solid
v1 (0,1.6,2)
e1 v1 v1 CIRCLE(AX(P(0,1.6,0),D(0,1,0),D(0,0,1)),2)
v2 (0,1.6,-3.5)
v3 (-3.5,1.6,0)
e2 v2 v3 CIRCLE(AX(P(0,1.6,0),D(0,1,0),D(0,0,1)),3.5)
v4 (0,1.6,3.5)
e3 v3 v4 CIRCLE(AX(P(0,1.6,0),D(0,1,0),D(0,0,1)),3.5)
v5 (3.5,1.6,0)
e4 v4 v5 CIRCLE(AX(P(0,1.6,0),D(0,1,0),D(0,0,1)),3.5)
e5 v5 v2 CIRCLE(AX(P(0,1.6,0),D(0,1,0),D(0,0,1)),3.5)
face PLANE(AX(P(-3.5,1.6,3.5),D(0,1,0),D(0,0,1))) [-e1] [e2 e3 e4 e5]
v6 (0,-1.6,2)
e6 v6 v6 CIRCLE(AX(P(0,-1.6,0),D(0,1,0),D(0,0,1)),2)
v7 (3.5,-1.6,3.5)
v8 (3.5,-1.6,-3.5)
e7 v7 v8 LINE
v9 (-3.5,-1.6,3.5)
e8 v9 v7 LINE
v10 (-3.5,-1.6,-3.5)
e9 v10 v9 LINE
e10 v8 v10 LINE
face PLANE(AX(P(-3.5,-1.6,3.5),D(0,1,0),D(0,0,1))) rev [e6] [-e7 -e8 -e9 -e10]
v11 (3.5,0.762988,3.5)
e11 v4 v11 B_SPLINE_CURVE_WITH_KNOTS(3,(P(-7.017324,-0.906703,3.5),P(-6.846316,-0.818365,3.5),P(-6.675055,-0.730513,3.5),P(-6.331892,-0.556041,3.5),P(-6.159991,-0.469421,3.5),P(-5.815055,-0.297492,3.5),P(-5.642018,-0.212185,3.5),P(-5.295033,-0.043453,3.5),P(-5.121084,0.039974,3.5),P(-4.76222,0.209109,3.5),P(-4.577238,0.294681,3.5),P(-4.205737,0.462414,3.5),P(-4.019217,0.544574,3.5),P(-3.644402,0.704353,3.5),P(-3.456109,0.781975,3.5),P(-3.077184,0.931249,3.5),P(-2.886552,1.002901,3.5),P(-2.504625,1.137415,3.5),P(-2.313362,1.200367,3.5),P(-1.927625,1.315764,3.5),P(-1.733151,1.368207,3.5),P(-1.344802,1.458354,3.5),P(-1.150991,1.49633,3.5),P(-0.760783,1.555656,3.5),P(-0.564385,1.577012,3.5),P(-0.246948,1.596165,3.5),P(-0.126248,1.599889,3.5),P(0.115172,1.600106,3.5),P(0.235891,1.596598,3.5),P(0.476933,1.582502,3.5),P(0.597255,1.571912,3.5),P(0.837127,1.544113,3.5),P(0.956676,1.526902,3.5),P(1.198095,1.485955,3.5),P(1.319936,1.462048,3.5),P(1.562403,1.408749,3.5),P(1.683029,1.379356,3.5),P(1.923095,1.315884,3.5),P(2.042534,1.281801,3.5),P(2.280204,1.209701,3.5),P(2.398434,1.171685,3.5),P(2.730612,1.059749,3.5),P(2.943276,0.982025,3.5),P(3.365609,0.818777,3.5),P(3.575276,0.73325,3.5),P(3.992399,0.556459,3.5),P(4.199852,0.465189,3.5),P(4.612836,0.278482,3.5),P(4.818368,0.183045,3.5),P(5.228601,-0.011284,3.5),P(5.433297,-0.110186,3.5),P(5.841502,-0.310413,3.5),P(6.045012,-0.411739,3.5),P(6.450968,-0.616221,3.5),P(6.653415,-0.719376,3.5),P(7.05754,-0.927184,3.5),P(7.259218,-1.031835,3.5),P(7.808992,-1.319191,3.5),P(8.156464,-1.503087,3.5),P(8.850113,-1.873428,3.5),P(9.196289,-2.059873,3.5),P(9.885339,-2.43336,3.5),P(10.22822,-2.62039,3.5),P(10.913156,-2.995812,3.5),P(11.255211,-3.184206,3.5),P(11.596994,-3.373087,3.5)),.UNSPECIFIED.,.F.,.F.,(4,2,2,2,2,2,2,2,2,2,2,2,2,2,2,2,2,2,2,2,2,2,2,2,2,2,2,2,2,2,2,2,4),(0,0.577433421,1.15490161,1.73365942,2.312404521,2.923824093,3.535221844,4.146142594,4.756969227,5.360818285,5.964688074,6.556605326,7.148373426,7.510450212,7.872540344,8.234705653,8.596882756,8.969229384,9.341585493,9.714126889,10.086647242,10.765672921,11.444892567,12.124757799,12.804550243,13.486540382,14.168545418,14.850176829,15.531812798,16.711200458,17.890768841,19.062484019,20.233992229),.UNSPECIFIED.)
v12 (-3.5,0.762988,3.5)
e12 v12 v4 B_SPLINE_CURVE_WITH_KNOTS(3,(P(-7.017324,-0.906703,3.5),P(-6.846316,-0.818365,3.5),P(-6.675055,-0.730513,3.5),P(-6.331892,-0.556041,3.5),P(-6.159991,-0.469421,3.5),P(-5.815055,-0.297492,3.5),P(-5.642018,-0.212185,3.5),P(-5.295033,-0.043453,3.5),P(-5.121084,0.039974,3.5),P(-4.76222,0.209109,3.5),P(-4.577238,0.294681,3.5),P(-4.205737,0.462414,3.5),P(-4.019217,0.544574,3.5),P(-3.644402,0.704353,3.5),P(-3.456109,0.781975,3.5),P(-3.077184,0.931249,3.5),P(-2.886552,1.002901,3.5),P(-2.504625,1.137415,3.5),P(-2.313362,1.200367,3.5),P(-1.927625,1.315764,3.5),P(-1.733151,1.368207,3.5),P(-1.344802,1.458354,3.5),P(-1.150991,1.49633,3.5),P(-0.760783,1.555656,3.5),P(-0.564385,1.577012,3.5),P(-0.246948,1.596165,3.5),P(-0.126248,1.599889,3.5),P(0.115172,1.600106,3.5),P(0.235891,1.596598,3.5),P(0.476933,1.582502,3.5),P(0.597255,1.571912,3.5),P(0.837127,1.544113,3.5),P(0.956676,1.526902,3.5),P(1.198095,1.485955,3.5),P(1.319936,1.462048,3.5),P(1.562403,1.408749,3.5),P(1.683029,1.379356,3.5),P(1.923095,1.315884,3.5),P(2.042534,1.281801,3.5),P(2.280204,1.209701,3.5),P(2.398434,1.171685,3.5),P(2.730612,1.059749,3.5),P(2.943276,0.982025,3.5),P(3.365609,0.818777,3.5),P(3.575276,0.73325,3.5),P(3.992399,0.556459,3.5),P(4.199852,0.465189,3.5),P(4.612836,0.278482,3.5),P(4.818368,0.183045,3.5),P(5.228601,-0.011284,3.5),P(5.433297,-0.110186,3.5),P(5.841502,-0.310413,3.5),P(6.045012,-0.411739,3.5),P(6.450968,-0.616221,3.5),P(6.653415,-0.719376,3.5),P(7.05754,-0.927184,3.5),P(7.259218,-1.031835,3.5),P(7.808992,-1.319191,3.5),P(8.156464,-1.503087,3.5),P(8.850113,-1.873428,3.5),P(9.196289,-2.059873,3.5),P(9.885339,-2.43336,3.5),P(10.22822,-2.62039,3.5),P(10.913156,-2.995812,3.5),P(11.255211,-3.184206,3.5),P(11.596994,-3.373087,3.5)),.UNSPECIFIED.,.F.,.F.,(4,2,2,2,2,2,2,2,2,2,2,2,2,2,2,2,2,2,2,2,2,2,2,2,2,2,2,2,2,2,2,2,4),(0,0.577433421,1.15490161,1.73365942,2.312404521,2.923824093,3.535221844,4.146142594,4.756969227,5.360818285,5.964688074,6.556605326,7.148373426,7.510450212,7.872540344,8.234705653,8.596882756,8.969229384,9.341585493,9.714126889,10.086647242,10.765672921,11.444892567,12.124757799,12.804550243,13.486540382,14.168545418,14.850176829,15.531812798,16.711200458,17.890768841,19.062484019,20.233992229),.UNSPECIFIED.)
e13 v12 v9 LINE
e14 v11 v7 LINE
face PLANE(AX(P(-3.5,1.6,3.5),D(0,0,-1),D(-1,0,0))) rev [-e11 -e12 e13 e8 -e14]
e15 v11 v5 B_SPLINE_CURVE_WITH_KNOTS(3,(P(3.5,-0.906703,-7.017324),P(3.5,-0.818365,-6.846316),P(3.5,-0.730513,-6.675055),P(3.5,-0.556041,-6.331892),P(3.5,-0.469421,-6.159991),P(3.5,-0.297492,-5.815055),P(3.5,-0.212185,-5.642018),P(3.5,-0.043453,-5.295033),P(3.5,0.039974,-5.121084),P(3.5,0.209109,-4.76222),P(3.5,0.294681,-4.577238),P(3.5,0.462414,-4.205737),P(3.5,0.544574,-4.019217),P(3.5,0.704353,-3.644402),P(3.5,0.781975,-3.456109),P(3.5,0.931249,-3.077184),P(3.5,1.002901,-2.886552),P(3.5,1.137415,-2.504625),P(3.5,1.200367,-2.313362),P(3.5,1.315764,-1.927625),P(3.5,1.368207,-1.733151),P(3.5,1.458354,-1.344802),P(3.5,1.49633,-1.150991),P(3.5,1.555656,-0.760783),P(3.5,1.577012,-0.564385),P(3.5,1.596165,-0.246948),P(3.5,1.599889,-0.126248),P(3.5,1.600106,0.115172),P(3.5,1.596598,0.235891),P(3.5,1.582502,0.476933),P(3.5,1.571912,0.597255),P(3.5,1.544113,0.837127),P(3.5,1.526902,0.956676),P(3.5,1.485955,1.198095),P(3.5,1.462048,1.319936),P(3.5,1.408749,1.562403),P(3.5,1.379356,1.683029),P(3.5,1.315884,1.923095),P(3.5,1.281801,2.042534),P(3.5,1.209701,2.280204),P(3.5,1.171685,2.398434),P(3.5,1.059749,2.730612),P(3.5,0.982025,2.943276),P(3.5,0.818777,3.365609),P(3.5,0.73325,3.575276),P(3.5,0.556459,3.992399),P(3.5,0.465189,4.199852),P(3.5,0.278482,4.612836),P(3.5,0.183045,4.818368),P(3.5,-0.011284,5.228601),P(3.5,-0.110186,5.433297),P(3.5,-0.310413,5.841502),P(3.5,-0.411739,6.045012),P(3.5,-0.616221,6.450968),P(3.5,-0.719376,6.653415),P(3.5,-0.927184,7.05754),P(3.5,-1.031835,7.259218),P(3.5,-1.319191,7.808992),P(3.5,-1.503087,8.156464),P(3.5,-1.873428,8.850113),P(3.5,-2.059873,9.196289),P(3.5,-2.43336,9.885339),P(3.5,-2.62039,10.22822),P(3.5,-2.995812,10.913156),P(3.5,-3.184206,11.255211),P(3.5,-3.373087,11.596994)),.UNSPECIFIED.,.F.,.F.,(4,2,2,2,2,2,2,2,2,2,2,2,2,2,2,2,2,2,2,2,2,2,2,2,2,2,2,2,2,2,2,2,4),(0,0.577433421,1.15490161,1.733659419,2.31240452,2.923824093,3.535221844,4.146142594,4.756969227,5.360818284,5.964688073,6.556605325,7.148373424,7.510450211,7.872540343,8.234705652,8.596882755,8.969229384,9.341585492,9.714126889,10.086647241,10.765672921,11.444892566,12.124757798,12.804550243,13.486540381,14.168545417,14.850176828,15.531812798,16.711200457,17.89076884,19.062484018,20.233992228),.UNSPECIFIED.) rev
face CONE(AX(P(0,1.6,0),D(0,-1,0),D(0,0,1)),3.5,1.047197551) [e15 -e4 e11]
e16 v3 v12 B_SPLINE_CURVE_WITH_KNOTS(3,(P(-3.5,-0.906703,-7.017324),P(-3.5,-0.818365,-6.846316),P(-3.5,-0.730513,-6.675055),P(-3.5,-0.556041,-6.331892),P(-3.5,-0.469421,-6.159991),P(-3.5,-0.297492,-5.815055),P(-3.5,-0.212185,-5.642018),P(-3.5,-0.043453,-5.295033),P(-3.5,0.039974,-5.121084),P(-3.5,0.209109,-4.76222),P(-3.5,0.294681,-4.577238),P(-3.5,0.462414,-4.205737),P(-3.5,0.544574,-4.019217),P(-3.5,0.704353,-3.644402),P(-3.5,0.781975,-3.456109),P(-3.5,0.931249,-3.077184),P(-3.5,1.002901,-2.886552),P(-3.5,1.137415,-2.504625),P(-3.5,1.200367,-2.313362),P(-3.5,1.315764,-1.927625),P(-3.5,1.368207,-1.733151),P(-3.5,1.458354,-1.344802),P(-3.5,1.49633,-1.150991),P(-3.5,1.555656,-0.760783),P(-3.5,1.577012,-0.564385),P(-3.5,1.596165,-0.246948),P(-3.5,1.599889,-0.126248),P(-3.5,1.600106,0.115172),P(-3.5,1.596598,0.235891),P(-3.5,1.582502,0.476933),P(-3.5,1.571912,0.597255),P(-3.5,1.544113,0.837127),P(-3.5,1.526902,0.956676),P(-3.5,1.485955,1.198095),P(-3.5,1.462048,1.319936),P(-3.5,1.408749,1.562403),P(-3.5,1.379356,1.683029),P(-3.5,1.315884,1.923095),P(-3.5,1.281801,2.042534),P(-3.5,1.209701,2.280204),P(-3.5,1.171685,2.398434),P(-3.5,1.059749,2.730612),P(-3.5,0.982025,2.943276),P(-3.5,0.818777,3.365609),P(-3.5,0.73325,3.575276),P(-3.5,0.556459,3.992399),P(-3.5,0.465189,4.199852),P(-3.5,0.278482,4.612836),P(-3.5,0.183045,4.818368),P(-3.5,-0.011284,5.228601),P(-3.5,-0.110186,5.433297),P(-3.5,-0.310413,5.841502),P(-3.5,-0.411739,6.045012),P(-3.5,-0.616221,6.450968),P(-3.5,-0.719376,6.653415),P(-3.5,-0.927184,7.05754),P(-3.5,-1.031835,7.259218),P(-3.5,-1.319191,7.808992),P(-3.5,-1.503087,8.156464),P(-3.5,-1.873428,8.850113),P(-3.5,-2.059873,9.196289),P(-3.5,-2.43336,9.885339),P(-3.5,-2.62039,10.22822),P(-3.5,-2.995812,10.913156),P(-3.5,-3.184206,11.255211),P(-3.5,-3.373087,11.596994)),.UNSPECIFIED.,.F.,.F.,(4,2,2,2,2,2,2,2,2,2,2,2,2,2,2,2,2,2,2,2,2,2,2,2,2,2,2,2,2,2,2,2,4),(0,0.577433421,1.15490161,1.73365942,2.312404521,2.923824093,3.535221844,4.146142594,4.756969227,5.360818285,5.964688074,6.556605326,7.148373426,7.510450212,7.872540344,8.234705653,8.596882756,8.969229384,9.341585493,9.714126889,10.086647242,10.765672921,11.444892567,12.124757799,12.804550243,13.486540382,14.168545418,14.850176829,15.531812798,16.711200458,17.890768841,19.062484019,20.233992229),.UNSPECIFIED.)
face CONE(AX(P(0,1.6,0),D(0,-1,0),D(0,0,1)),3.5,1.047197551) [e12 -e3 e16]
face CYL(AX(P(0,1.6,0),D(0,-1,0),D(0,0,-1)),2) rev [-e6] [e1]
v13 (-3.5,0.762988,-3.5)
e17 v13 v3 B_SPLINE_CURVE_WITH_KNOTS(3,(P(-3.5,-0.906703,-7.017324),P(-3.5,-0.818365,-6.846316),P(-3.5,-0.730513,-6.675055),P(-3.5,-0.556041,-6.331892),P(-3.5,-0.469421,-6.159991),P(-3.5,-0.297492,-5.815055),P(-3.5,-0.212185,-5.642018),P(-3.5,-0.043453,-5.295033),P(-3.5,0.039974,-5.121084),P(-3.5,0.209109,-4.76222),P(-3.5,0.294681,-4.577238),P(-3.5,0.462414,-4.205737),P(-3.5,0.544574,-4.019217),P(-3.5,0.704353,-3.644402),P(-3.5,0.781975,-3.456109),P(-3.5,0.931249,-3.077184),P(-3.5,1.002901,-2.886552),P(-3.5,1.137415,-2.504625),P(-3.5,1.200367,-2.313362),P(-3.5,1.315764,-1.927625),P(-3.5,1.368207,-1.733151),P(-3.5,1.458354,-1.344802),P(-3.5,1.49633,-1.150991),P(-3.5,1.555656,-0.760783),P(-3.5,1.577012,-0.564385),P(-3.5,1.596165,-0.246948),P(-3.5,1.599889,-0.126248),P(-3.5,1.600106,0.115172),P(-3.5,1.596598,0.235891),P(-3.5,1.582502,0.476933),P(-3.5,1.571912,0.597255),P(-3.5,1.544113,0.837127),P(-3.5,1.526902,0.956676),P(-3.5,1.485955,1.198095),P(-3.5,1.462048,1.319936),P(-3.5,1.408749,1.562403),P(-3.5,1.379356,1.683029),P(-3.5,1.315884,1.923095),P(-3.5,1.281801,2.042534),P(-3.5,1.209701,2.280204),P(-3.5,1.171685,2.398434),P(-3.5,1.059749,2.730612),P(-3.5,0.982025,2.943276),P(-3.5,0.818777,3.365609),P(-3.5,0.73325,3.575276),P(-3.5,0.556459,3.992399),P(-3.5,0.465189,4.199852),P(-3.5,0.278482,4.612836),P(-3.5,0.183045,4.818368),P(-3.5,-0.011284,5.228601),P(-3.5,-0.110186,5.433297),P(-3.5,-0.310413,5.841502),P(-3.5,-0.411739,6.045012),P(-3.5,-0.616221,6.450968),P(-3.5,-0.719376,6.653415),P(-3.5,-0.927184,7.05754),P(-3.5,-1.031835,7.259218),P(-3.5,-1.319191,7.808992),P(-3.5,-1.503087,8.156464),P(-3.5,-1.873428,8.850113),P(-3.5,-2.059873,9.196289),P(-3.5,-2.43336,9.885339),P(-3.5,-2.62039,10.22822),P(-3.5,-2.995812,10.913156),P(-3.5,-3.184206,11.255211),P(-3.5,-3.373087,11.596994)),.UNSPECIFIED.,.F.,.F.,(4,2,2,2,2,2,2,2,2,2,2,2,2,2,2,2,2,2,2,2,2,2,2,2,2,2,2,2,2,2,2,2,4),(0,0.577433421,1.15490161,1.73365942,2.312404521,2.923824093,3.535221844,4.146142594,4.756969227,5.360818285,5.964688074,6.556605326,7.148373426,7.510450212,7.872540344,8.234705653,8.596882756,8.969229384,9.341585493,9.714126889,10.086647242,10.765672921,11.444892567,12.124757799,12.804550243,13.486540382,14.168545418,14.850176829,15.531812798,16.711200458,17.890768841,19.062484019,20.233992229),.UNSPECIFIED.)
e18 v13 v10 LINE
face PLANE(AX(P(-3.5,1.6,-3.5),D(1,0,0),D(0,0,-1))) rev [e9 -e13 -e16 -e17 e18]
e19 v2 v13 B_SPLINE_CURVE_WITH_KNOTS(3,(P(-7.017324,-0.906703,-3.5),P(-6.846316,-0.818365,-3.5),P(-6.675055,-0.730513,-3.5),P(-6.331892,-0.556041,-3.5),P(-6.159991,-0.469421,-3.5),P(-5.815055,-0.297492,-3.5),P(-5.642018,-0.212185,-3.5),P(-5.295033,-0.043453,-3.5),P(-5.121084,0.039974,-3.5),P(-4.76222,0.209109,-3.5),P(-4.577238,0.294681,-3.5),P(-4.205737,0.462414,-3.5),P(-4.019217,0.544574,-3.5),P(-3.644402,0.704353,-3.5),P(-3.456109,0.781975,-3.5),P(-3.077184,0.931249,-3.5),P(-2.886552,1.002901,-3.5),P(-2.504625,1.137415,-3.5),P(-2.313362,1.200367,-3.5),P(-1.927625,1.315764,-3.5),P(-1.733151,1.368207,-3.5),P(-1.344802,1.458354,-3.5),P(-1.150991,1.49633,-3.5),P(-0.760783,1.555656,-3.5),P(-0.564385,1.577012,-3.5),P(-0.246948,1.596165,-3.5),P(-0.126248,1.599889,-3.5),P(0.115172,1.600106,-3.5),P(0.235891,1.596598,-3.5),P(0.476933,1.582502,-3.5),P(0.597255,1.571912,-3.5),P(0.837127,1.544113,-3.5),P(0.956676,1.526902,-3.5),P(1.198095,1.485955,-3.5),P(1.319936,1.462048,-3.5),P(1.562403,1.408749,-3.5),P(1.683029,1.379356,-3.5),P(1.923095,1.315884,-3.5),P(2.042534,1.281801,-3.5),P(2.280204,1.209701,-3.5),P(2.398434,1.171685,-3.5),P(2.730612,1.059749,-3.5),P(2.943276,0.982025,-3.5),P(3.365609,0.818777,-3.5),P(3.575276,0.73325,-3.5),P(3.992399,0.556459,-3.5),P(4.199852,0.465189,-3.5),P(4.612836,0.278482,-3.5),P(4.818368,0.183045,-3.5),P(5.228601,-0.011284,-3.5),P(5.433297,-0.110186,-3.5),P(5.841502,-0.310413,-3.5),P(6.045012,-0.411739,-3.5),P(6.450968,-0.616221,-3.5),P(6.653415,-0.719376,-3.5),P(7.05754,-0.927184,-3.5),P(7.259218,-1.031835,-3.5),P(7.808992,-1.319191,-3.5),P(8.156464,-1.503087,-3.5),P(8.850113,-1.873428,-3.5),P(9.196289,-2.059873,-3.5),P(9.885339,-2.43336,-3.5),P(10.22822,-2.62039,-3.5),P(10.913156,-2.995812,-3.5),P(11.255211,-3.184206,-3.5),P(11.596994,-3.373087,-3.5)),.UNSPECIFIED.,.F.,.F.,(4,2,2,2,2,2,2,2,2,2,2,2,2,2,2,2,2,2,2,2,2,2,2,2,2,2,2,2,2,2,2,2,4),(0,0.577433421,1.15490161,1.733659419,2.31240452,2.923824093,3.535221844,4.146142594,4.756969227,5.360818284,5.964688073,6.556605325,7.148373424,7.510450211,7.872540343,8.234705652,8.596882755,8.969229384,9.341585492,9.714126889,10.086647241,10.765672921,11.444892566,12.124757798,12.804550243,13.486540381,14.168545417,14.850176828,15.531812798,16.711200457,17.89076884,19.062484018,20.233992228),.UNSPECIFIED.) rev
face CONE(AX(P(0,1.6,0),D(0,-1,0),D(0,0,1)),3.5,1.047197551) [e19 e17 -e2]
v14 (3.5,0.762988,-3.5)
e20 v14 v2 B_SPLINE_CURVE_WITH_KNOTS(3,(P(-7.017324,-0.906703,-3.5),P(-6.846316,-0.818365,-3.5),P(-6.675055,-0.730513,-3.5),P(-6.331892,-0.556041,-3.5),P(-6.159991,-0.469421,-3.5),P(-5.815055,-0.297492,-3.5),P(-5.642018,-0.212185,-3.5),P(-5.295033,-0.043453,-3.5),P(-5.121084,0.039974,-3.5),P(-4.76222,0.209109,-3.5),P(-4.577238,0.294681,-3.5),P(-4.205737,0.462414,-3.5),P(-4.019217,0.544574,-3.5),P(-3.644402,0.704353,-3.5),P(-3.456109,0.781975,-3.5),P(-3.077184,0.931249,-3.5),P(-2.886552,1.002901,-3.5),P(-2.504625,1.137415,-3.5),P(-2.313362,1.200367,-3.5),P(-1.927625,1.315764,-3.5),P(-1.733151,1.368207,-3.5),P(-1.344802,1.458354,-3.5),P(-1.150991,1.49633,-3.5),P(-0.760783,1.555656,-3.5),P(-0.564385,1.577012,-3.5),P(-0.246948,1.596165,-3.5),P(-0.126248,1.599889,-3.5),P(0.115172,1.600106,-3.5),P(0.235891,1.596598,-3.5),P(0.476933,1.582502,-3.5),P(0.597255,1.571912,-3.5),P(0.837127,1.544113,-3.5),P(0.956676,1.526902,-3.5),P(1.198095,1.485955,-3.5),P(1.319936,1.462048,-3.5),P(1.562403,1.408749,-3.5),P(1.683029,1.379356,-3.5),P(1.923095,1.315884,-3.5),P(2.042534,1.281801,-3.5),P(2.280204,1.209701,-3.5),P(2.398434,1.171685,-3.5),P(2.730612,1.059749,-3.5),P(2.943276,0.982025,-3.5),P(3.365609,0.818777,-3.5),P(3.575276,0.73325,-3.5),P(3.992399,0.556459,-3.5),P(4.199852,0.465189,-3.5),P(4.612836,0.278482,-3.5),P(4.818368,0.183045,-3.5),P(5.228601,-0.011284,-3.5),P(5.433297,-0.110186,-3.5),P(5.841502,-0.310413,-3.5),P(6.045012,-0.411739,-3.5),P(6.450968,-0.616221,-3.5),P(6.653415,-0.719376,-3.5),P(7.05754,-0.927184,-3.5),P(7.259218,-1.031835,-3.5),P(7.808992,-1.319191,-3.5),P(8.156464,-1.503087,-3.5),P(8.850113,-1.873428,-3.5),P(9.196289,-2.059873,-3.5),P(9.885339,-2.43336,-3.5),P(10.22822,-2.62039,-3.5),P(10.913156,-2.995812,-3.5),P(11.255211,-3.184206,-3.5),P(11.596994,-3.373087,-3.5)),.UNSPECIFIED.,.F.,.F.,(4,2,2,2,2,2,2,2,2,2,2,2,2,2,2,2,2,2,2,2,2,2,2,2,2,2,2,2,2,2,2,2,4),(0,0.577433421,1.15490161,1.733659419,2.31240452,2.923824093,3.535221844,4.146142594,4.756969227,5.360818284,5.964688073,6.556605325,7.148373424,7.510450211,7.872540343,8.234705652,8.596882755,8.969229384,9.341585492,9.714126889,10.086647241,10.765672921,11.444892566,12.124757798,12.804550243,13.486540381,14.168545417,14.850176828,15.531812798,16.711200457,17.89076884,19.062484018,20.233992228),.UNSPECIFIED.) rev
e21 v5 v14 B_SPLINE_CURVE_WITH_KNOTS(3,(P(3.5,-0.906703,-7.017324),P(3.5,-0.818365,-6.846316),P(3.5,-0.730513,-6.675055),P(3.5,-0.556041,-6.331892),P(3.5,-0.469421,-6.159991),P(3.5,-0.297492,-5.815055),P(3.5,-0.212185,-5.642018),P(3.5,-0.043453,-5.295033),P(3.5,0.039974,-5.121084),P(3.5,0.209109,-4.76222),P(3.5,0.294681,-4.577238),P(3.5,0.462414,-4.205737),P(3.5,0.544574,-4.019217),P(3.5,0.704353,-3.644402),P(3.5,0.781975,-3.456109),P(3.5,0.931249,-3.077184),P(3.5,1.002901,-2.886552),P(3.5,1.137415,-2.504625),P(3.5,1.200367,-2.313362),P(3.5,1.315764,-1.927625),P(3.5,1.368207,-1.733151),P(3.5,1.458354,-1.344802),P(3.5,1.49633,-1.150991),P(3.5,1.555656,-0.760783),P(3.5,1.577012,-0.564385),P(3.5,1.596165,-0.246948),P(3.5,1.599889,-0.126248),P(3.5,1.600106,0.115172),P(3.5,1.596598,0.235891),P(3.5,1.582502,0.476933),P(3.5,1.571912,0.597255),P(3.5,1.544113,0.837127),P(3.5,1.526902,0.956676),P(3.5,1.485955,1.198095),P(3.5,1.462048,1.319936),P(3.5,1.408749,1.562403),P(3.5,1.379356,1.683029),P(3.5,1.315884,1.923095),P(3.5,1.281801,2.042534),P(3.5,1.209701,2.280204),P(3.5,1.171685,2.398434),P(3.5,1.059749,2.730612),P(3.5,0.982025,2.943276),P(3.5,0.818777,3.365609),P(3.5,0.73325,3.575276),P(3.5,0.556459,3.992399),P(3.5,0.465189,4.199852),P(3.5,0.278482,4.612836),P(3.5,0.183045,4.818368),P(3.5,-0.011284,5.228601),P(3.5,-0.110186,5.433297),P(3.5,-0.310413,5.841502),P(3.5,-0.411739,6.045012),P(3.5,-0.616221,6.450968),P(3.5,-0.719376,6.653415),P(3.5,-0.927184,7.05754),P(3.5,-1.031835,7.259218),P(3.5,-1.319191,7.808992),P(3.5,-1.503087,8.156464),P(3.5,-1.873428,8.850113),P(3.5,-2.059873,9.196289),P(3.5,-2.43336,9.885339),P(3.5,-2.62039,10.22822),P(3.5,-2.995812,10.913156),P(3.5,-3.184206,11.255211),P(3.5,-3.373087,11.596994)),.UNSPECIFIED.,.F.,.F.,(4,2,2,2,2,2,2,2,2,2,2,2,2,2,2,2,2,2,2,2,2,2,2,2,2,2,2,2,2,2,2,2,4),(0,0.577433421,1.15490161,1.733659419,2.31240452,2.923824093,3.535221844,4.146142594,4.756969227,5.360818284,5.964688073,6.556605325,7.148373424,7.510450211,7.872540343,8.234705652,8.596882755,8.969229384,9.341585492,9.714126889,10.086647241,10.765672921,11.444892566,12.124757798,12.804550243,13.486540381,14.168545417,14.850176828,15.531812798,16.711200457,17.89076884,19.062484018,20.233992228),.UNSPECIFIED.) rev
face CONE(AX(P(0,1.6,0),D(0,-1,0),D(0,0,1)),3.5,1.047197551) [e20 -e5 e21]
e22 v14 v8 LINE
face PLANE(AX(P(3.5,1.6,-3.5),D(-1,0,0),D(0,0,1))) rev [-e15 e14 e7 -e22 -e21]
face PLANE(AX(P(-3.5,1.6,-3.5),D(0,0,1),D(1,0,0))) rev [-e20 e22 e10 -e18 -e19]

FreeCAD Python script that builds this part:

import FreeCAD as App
import Part
import Sketcher
from FreeCAD import Vector
Q = App.Units.Quantity


def add_polygon(sketch, points):
    """Adds a closed chain of lines whose ends are joined by coincident constraints."""
    first, n = sketch.GeometryCount, len(points)
    for a, b in zip(points, points[1:] + points[:1]):
        sketch.addGeometry(Part.LineSegment(App.Vector(*a, 0), App.Vector(*b, 0)), False)
    for i in range(n):
        sketch.addConstraint(Sketcher.Constraint("Coincident", first + i, 2, first + (i + 1) % n, 1))

doc = App.newDocument("Part")
body = doc.addObject("PartDesign::Body", "Body")

# Sketch on XZ plane
sketch1 = body.newObject("Sketcher::SketchObject", "Sketch")
sketch1.AttachmentSupport = (doc.getObject("XZ_Plane"), [""])
sketch1.MapMode = "FlatFace"
add_polygon(sketch1, [(-3.5, -3.5), (-3.5, 3.5), (3.5, 3.5), (3.5, -3.5)])  # lines 0-3
sketch1.addGeometry(Part.Circle(Vector(0, 0, 0), Vector(0, 0, 1), 2), False)  # 4
sketch1.addConstraint([
    Sketcher.Constraint("Vertical", 0),
    Sketcher.Constraint("Horizontal", 1),
    Sketcher.Constraint("Vertical", 2),
    Sketcher.Constraint("Horizontal", 3),
    Sketcher.Constraint("Coincident", 4, 3, -1, 1),
    Sketcher.Constraint("Symmetric", 0, 2, 2, 2, -1, 1),
    Sketcher.Constraint("Equal", 3, 0),
    Sketcher.Constraint("Diameter", 4, Q("4 mm")),
    Sketcher.Constraint("DistanceX", 1, 1, 1, 2, Q("7 mm")),
])
pad1 = body.newObject("PartDesign::Pad", "Pad")
pad1.Profile = sketch1
pad1.Length = 3.2
pad1.Midplane = True

# Sketch on XZ plane
sketch2 = body.newObject("Sketcher::SketchObject", "Sketch001")
sketch2.AttachmentSupport = (doc.getObject("XZ_Plane"), [""])
sketch2.MapMode = "FlatFace"
sketch2.AttachmentOffset = App.Placement(Vector(0, 0, -1.6), App.Rotation())
add_polygon(sketch2, [(-12.8, -12.8), (-12.8, 12.8), (12.8, 12.8), (12.8, -12.8)])  # lines 0-3
sketch2.addGeometry(Part.Circle(Vector(0, 0, 0), Vector(0, 0, 1), 3.5), False)  # 4
sketch2.addConstraint([
    Sketcher.Constraint("Vertical", 0),
    Sketcher.Constraint("Horizontal", 1),
    Sketcher.Constraint("Vertical", 2),
    Sketcher.Constraint("Horizontal", 3),
    Sketcher.Constraint("Coincident", 4, 3, -1, 1),
    Sketcher.Constraint("Symmetric", 0, 2, 2, 2, -1, 1),
    Sketcher.Constraint("Equal", 3, 0),
    Sketcher.Constraint("Diameter", 4, Q("7 mm")),
    Sketcher.Constraint("DistanceX", 1, 1, 1, 2, Q("25.63 mm")),
])
pocket1 = body.newObject("PartDesign::Pocket", "Pocket")
pocket1.Profile = sketch2
pocket1.Length = 4.2
pocket1.Reversed = True
pocket1.TaperAngle = 60

doc.recompute()
